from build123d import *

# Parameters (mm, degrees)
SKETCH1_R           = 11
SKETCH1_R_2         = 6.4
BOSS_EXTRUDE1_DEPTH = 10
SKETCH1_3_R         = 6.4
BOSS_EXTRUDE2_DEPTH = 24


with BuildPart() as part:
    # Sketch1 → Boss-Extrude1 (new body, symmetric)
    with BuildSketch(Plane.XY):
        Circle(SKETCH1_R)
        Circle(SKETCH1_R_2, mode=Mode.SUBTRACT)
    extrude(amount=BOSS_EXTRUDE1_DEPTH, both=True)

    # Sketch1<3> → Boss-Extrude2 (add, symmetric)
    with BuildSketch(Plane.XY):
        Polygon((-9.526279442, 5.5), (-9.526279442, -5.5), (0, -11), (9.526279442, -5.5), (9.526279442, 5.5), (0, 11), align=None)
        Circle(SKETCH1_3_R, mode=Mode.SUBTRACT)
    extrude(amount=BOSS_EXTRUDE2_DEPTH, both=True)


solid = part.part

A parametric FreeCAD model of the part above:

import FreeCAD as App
import Part
import Sketcher

V = App.Vector
Q = App.Units.Quantity


def add_polygon(sketch, points):
    """Adds a closed chain of lines whose ends are joined by coincident constraints."""
    first, n = sketch.GeometryCount, len(points)
    for a, b in zip(points, points[1:] + points[:1]):
        sketch.addGeometry(Part.LineSegment(App.Vector(*a, 0), App.Vector(*b, 0)), False)
    for i in range(n):
        sketch.addConstraint(Sketcher.Constraint("Coincident", first + i, 2, first + (i + 1) % n, 1))

doc = App.newDocument("Part")
body = doc.addObject("PartDesign::Body", "Body")

# Sketch on XY plane
sketch1 = body.newObject("Sketcher::SketchObject", "Sketch")
sketch1.AttachmentSupport = (doc.getObject("XY_Plane"), [""])
sketch1.MapMode = "FlatFace"
sketch1.addGeometry([
    Part.Circle(V(0, 0, 0), V(0, 0, 1), 11),
    Part.Circle(V(0, 0, 0), V(0, 0, 1), 6),
], False)
sketch1.addConstraint([
    Sketcher.Constraint("Coincident", 0, 3, -1, 1),
    Sketcher.Constraint("Coincident", 1, 3, -1, 1),
    Sketcher.Constraint("Diameter", 0, 22.0),
    Sketcher.Constraint("Diameter", 1, 12.8),
])
pad1 = body.newObject("PartDesign::Pad", "Pad")
pad1.Profile = sketch1
pad1.Length = 20
pad1.Midplane = True

# Sketch on XY plane
sketch2 = body.newObject("Sketcher::SketchObject", "Sketch001")
sketch2.AttachmentSupport = (doc.getObject("XY_Plane"), [""])
sketch2.MapMode = "FlatFace"
add_polygon(sketch2, [(-10, 6), (-10, -6), (0, -11), (10, -6), (10, 6), (0, 11)])  # lines 0-5
sketch2.addGeometry(Part.Circle(V(0, 0, 0), V(0, 0, 1), 6), False)  # 6
sketch2.addConstraint([
    Sketcher.Constraint("Vertical", 0),
    Sketcher.Constraint("Vertical", 3),
    Sketcher.Constraint("Coincident", 6, 3, -1, 1),
    Sketcher.Constraint("Symmetric", 0, 2, 3, 2, -1, 1),
    Sketcher.Constraint("Symmetric", 1, 2, 4, 2, -1, 1),
    Sketcher.Constraint("PointOnObject", 1, 2, -2),
    Sketcher.Constraint("Parallel", 2, 5),
    Sketcher.Constraint("Horizontal", 0, 2, 2, 2),
    Sketcher.Constraint("Diameter", 6, 12.8),
    Sketcher.Constraint("DistanceY", 0, 2, 0, 1, 11.0),
    Sketcher.Constraint("Angle", 1, Q("-30 deg")),
    Sketcher.Constraint("Distance", 1, 11.0),
])
pad2 = body.newObject("PartDesign::Pad", "Pad001")
pad2.Profile = sketch2
pad2.Length = 48
pad2.Midplane = True

doc.recompute()
